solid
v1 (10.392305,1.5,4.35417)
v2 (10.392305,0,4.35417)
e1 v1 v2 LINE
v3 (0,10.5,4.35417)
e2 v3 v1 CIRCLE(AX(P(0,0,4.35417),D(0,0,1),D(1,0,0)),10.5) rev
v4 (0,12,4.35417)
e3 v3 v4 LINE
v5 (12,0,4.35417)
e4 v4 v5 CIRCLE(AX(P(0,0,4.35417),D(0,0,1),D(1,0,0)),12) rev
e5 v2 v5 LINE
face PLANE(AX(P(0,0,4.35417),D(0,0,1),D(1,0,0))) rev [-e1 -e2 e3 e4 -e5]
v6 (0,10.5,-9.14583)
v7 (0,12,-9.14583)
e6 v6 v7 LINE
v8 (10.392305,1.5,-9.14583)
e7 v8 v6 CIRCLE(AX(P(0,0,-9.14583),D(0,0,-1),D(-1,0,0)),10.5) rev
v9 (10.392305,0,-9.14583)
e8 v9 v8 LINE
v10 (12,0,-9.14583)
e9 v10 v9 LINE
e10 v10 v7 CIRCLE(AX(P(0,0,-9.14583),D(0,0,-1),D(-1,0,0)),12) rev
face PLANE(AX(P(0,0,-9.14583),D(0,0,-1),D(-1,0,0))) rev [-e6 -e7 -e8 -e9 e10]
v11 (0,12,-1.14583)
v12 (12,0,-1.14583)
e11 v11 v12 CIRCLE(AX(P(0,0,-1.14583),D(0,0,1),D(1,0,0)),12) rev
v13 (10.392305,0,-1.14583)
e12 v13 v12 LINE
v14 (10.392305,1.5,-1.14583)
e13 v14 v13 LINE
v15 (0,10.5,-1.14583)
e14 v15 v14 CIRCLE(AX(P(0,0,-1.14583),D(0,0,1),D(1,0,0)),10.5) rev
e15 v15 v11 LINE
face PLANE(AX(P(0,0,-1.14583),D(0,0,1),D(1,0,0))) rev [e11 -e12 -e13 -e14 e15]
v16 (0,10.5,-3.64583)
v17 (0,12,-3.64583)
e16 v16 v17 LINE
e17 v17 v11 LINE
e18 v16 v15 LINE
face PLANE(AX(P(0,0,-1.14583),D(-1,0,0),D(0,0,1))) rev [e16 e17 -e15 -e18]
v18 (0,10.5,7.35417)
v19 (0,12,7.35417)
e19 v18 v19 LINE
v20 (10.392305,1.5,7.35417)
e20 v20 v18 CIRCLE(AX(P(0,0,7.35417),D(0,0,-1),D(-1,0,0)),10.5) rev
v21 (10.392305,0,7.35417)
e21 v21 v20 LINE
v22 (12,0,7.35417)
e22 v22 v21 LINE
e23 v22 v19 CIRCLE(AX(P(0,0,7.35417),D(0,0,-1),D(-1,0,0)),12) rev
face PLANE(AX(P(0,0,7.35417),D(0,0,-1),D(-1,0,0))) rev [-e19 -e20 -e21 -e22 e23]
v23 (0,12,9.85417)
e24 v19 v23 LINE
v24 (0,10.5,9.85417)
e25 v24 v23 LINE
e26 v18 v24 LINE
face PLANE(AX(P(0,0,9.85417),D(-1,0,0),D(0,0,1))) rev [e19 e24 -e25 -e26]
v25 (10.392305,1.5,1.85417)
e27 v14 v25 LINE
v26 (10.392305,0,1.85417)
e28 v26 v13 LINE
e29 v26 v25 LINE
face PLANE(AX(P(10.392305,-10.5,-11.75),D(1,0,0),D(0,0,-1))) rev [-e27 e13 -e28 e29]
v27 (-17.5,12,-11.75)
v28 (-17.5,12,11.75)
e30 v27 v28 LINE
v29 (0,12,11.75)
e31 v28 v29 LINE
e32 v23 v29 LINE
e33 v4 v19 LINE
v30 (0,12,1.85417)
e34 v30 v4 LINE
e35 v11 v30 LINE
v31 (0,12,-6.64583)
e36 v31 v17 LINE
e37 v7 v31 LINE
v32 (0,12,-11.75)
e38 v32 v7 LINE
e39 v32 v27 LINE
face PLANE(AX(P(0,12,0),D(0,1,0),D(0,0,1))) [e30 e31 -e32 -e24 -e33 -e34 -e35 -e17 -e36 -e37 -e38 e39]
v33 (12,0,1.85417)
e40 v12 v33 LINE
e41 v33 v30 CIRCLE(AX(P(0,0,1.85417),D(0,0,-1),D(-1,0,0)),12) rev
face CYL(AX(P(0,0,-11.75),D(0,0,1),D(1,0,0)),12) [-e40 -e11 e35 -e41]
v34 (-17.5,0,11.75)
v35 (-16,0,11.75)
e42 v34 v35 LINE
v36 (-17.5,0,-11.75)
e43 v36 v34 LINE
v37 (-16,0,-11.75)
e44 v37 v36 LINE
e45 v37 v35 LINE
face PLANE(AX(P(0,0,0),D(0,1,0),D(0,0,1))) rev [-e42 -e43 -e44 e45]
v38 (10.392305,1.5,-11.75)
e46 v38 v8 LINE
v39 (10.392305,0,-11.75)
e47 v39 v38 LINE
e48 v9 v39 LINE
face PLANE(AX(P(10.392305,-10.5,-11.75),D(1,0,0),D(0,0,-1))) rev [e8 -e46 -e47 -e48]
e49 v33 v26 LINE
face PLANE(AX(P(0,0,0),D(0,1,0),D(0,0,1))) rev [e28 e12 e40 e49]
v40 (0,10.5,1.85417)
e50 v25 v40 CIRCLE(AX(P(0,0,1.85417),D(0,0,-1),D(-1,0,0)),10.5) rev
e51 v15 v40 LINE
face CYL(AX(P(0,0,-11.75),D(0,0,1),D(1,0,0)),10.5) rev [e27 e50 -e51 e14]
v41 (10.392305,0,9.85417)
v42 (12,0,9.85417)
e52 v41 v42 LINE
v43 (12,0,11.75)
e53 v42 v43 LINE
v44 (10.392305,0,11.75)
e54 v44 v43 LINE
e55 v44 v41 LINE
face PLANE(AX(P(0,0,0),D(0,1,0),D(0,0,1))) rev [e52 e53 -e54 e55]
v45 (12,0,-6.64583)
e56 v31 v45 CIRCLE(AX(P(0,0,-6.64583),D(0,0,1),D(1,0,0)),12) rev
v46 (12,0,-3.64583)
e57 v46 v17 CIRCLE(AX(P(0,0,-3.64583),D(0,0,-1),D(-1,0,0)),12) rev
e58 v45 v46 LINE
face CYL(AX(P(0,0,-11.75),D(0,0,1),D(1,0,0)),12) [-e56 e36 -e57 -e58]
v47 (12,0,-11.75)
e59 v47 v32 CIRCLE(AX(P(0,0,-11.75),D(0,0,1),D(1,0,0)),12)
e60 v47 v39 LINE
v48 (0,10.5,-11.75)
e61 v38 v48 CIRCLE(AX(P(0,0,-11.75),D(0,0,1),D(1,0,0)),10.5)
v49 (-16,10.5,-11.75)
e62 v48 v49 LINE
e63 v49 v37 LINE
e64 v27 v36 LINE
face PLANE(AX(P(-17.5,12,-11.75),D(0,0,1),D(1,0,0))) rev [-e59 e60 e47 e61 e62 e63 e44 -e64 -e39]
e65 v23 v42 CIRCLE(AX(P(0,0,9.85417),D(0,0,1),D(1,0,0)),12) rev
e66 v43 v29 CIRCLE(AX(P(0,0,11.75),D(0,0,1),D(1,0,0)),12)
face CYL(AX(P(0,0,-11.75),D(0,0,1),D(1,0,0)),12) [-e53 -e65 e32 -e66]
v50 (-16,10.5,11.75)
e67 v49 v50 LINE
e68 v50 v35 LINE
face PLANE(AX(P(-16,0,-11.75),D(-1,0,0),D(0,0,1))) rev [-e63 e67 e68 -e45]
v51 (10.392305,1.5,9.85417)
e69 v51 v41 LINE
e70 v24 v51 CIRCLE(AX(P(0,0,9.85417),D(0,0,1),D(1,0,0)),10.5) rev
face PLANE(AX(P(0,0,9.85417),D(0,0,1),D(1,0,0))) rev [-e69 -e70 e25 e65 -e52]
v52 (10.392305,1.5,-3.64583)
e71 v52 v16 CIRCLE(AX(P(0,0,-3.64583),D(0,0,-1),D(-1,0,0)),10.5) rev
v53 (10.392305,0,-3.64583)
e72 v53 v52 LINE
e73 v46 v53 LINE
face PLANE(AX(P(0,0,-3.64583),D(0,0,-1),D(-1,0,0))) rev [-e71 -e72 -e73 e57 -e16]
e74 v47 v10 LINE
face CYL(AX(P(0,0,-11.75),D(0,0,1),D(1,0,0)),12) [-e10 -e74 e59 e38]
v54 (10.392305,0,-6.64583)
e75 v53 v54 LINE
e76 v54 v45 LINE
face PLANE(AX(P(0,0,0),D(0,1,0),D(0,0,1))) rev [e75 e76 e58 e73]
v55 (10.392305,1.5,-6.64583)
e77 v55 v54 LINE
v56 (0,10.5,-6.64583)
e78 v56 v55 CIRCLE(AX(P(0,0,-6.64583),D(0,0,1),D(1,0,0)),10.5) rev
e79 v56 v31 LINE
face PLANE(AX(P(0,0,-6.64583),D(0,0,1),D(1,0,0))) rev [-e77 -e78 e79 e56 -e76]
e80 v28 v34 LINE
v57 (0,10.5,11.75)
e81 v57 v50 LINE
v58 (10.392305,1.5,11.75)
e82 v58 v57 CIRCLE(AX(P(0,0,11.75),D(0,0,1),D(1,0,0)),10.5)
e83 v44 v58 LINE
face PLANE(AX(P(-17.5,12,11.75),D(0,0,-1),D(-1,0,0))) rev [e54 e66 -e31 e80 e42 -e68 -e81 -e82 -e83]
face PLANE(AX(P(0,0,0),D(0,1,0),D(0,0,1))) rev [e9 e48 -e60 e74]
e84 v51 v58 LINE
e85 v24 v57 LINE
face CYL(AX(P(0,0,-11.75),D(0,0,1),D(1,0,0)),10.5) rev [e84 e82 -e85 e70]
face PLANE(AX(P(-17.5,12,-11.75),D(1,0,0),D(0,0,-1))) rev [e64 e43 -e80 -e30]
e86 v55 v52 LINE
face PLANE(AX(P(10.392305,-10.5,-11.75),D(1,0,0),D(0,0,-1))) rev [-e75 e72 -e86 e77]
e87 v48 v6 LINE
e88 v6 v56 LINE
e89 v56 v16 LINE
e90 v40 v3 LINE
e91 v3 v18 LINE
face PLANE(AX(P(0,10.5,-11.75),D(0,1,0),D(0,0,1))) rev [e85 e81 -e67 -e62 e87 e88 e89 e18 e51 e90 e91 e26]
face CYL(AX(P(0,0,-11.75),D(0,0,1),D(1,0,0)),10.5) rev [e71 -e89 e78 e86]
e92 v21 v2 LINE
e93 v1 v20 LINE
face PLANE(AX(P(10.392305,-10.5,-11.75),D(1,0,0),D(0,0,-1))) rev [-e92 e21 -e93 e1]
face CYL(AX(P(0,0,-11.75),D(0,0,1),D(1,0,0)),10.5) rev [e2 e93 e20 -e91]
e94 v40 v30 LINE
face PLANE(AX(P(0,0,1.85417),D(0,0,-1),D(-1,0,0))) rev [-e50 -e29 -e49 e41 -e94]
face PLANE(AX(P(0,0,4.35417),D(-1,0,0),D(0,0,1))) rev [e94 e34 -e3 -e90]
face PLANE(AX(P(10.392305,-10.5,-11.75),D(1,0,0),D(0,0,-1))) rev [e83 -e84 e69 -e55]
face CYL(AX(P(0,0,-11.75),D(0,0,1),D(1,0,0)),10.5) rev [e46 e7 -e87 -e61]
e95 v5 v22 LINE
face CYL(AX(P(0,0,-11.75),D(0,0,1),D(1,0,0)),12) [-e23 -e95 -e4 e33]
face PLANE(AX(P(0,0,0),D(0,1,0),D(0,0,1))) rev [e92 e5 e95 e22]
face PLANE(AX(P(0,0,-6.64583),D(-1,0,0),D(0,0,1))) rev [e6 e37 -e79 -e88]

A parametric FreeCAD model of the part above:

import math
import FreeCAD as App
import Part
import Sketcher
from FreeCAD import Vector


def add_polygon(sketch, points):
    """Adds a closed chain of lines whose ends are joined by coincident constraints."""
    first, n = sketch.GeometryCount, len(points)
    for a, b in zip(points, points[1:] + points[:1]):
        sketch.addGeometry(Part.LineSegment(App.Vector(*a, 0), App.Vector(*b, 0)), False)
    for i in range(n):
        sketch.addConstraint(Sketcher.Constraint("Coincident", first + i, 2, first + (i + 1) % n, 1))

doc = App.newDocument("Part")
body = doc.addObject("PartDesign::Body", "Body")

# Sketch on XZ plane
sketch1 = body.newObject("Sketcher::SketchObject", "Sketch")
sketch1.AttachmentSupport = (doc.getObject("XZ_Plane"), [""])
sketch1.MapMode = "FlatFace"
add_polygon(sketch1, [(-18, -12), (-18, 12), (18, 12), (18, -12)])  # lines 0-3
sketch1.addConstraint([
    Sketcher.Constraint("Vertical", 0),
    Sketcher.Constraint("Horizontal", 1),
    Sketcher.Constraint("Vertical", 2),
    Sketcher.Constraint("Horizontal", 3),
    Sketcher.Constraint("Symmetric", 0, 2, 2, 2, -1, 1),
    Sketcher.Constraint("DistanceX", 1, 1, 1, 2, 35.0),
    Sketcher.Constraint("DistanceY", 0, 1, 0, 2, 23.5),
])
pad1 = body.newObject("PartDesign::Pad", "Pad")
pad1.Profile = sketch1
pad1.Length = 12
pad1.Reversed = True

# Sketch on XY plane
sketch2 = body.newObject("Sketcher::SketchObject", "Sketch001")
sketch2.AttachmentSupport = (doc.getObject("XY_Plane"), [""])
sketch2.MapMode = "FlatFace"
sketch2.AttachmentOffset = App.Placement(Vector(0, 0, 11.75), App.Rotation())
sketch2.addGeometry([
    Part.LineSegment(Vector(18, 12, 0), Vector(0, 12, 0)),
    Part.ArcOfCircle(Part.Circle(Vector(0, 0, 0), Vector(0, 0, 1), 12), math.radians(0), math.radians(90)),
    Part.LineSegment(Vector(12, 0, 0), Vector(18, 0, 0)),
    Part.LineSegment(Vector(18, 0, 0), Vector(18, 12, 0)),
], False)
sketch2.addConstraint([
    Sketcher.Constraint("Tangent", 0, 2, 1, 2),
    Sketcher.Constraint("Coincident", 1, 1, 2, 1),
    Sketcher.Constraint("Coincident", 2, 2, 3, 1),
    Sketcher.Constraint("Coincident", 3, 2, 0, 1),
    Sketcher.Constraint("Horizontal", 0),
    Sketcher.Constraint("Horizontal", 2),
    Sketcher.Constraint("Vertical", 3),
    Sketcher.Constraint("Coincident", 1, 3, -1, 1),
    Sketcher.Constraint("PointOnObject", 1, 1, -1),
    Sketcher.Constraint("Radius", 1, 12.0),
    Sketcher.Constraint("DistanceX", 0, 2, 0, 1, 17.5),
])
pocket1 = body.newObject("PartDesign::Pocket", "Pocket")
pocket1.Profile = sketch2
pocket1.Type = "ThroughAll"

# Sketch on XY plane
sketch3 = body.newObject("Sketcher::SketchObject", "Sketch002")
sketch3.AttachmentSupport = (doc.getObject("XY_Plane"), [""])
sketch3.MapMode = "FlatFace"
sketch3.AttachmentOffset = App.Placement(Vector(0, 0, 11.75), App.Rotation())
sketch3.addGeometry([
    Part.LineSegment(Vector(-16, 2, 0), Vector(10, 2, 0)),
    Part.ArcOfCircle(Part.Circle(Vector(0, 0, 0), Vector(0, 0, 1), 10), math.radians(8), math.radians(90)),
    Part.LineSegment(Vector(0, 10, 0), Vector(-16, 10, 0)),
    Part.LineSegment(Vector(-16, 10, 0), Vector(-16, 2, 0)),
], False)
sketch3.addConstraint([
    Sketcher.Constraint("Coincident", 0, 2, 1, 1),
    Sketcher.Constraint("Tangent", 1, 2, 2, 1),
    Sketcher.Constraint("Coincident", 2, 2, 3, 1),
    Sketcher.Constraint("Coincident", 3, 2, 0, 1),
    Sketcher.Constraint("Horizontal", 0),
    Sketcher.Constraint("Horizontal", 2),
    Sketcher.Constraint("Vertical", 3),
    Sketcher.Constraint("Coincident", 1, 3, -1, 1),
    Sketcher.Constraint("Radius", 1, 10.5),
    Sketcher.Constraint("DistanceX", 2, 2, 2, 1, 16.0),
    Sketcher.Constraint("DistanceY", 3, 2, 3, 1, 9.0),
])
pocket2 = body.newObject("PartDesign::Pocket", "Pocket001")
pocket2.Profile = sketch3
pocket2.Type = "ThroughAll"

# Sketch on XZ plane
sketch4 = body.newObject("Sketcher::SketchObject", "Sketch003")
sketch4.AttachmentSupport = (doc.getObject("XZ_Plane"), [""])
sketch4.MapMode = "FlatFace"
sketch4.AttachmentOffset = App.Placement(Vector(0, 0, -1.5), App.Rotation())
add_polygon(sketch4, [(-16, -12), (-16, 12), (10, 12), (10, -12)])  # lines 0-3
sketch4.addConstraint([
    Sketcher.Constraint("Vertical", 0),
    Sketcher.Constraint("Horizontal", 1),
    Sketcher.Constraint("Vertical", 2),
    Sketcher.Constraint("Horizontal", 3),
    Sketcher.Constraint("DistanceY", 0, 1, 0, 2, 23.5),
    Sketcher.Constraint("DistanceX", 0, 2, -1, 1, 16.0),
    Sketcher.Constraint("DistanceY", -1, 1, 0, 2, 11.75),
    Sketcher.Constraint("DistanceX", 1, 1, 1, 2, 26.392305),
])
pocket3 = body.newObject("PartDesign::Pocket", "Pocket002")
pocket3.Profile = sketch4
pocket3.Length = 12
pocket3.Reversed = True

# Sketch on XZ plane
sketch5 = body.newObject("Sketcher::SketchObject", "Sketch004")
sketch5.AttachmentSupport = (doc.getObject("XZ_Plane"), [""])
sketch5.MapMode = "FlatFace"
sketch5.AttachmentOffset = App.Placement(Vector(0, 0, -12), App.Rotation())
add_polygon(sketch5, [(0, 7.4), (0, 9.9), (14.8, 9.9), (14.8, 7.4)])  # lines 0-3
add_polygon(sketch5, [(0, 1.9), (0, 4.4), (14.8, 4.4), (14.8, 1.9)])  # lines 4-7
add_polygon(sketch5, [(0, -3.6), (0, -1.1), (14.8, -1.1), (14.8, -3.6)])  # lines 8-11
add_polygon(sketch5, [(0, -9.1), (0, -6.6), (14.8, -6.6), (14.8, -9.1)])  # lines 12-15
sketch5.addConstraint([
    Sketcher.Constraint("Vertical", 0),
    Sketcher.Constraint("Horizontal", 1),
    Sketcher.Constraint("Vertical", 2),
    Sketcher.Constraint("Horizontal", 3),
    Sketcher.Constraint("Vertical", 4),
    Sketcher.Constraint("Horizontal", 5),
    Sketcher.Constraint("Vertical", 6),
    Sketcher.Constraint("Horizontal", 7),
    Sketcher.Constraint("Vertical", 8),
    Sketcher.Constraint("Horizontal", 9),
    Sketcher.Constraint("Vertical", 10),
    Sketcher.Constraint("Horizontal", 11),
    Sketcher.Constraint("Vertical", 12),
    Sketcher.Constraint("Horizontal", 13),
    Sketcher.Constraint("Vertical", 14),
    Sketcher.Constraint("Horizontal", 15),
    Sketcher.Constraint("PointOnObject", 0, 2, -2),
    Sketcher.Constraint("PointOnObject", 4, 2, -2),
    Sketcher.Constraint("PointOnObject", 8, 2, -2),
    Sketcher.Constraint("PointOnObject", 12, 2, -2),
    Sketcher.Constraint("Vertical", 2, 2, 5, 2),
    Sketcher.Constraint("Vertical", 6, 2, 9, 2),
    Sketcher.Constraint("Vertical", 10, 2, 13, 2),
    Sketcher.Constraint("Equal", 2, 4),
    Sketcher.Constraint("Equal", 6, 8),
    Sketcher.Constraint("Equal", 10, 12),
    Sketcher.Constraint("DistanceY", 0, 1, 0, 2, 2.5),
    Sketcher.Constraint("DistanceY", 4, 2, 3, 2, 3.0),
    Sketcher.Constraint("DistanceY", 8, 2, 7, 2, 3.0),
    Sketcher.Constraint("DistanceY", 12, 2, 11, 2, 3.0),
    Sketcher.Constraint("DistanceX", 1, 1, 1, 2, 14.786733),
    Sketcher.Constraint("DistanceY", -1, 1, 0, 2, 9.85417),
])
pocket4 = body.newObject("PartDesign::Pocket", "Pocket003")
pocket4.Profile = sketch5
pocket4.Type = "ThroughAll"
pocket4.Reversed = True

doc.recompute()
